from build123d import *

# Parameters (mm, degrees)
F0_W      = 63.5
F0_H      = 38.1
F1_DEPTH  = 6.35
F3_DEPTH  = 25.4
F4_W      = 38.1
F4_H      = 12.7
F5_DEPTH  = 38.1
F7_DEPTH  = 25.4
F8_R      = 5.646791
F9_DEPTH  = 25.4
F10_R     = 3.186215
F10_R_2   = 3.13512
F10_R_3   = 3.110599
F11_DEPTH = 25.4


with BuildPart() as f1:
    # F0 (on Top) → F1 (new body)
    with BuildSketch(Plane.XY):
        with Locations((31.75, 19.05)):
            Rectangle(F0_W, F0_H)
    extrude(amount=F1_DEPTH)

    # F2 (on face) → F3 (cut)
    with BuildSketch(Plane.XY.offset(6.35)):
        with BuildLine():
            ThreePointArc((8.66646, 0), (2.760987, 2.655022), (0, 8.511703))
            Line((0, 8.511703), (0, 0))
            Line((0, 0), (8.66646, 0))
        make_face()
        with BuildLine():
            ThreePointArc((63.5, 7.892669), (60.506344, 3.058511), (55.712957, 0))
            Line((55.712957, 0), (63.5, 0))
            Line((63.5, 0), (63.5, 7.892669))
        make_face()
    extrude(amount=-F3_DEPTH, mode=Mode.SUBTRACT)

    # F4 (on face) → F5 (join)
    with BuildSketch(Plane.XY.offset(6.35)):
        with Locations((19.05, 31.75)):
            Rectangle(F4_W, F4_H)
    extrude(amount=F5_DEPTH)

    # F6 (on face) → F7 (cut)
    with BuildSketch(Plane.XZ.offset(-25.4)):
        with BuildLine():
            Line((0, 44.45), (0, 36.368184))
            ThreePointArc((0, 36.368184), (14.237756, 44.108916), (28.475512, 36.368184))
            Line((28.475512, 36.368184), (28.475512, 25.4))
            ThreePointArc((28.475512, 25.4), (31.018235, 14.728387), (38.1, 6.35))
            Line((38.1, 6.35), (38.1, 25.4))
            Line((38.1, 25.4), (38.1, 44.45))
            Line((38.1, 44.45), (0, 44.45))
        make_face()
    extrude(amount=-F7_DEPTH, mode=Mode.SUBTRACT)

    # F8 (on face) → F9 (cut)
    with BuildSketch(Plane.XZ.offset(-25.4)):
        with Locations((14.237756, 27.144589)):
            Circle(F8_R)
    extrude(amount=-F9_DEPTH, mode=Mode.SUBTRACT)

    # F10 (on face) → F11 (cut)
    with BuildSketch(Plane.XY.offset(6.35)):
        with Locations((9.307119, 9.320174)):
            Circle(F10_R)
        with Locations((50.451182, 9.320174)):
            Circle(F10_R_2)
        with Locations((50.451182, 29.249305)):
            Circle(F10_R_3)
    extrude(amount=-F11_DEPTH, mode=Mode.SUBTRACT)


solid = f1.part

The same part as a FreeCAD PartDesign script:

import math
import FreeCAD as App
import Part
import Sketcher
Q = App.Units.Quantity


def add_polygon(sketch, points):
    """Adds a closed chain of lines whose ends are joined by coincident constraints."""
    first, n = sketch.GeometryCount, len(points)
    for a, b in zip(points, points[1:] + points[:1]):
        sketch.addGeometry(Part.LineSegment(App.Vector(*a, 0), App.Vector(*b, 0)), False)
    for i in range(n):
        sketch.addConstraint(Sketcher.Constraint("Coincident", first + i, 2, first + (i + 1) % n, 1))

doc = App.newDocument("Part")
body = doc.addObject("PartDesign::Body", "Body")

sketch1 = body.newObject("Sketcher::SketchObject", "Sketch")
sketch1.AttachmentSupport = (doc.getObject("XY_Plane"), [""])
sketch1.MapMode = "FlatFace"
add_polygon(sketch1, [(0, 38), (0, 0), (64, 0), (64, 38)])
sketch1.addConstraint(Sketcher.Constraint("Vertical", 0))
sketch1.addConstraint(Sketcher.Constraint("Horizontal", 1))
sketch1.addConstraint(Sketcher.Constraint("Vertical", 2))
sketch1.addConstraint(Sketcher.Constraint("Horizontal", 3))
sketch1.addConstraint(Sketcher.Constraint("Coincident", 0, 2, -1, 1))
sketch1.addConstraint(Sketcher.Constraint("DistanceX", 1, 1, 1, 2, Q("2.5 in")))
sketch1.addConstraint(Sketcher.Constraint("DistanceY", 0, 2, 0, 1, Q("1.5 in")))
pad1 = body.newObject("PartDesign::Pad", "Pad")
pad1.Profile = sketch1
pad1.Length = Q("0.25 in")

sketch2 = body.newObject("Sketcher::SketchObject", "Sketch001")
sketch2.AttachmentSupport = (doc.getObject("XY_Plane"), [""])
sketch2.MapMode = "FlatFace"
sketch2.AttachmentOffset = App.Placement(App.Vector(0, 0, 0.25 * 25.4), App.Rotation())
sketch2.addGeometry(Part.ArcOfCircle(Part.Circle(App.Vector(9, 9, 0), App.Vector(0, 0, 1), 9), math.radians(-175), math.radians(-94)), False)
sketch2.addGeometry(Part.LineSegment(App.Vector(0, 9, 0), App.Vector(0, 0, 0)), False)
sketch2.addGeometry(Part.LineSegment(App.Vector(0, 0, 0), App.Vector(9, 0, 0)), False)
sketch2.addGeometry(Part.ArcOfCircle(Part.Circle(App.Vector(51, 12, 0), App.Vector(0, 0, 1), 13), math.radians(-70), math.radians(-19)), False)
sketch2.addGeometry(Part.LineSegment(App.Vector(56, 0, 0), App.Vector(64, 0, 0)), False)
sketch2.addGeometry(Part.LineSegment(App.Vector(64, 0, 0), App.Vector(64, 8, 0)), False)
sketch2.addConstraint(Sketcher.Constraint("Coincident", 0, 1, 1, 1))
sketch2.addConstraint(Sketcher.Constraint("Coincident", 1, 2, 2, 1))
sketch2.addConstraint(Sketcher.Constraint("Coincident", 2, 2, 0, 2))
sketch2.addConstraint(Sketcher.Constraint("Coincident", 3, 1, 4, 1))
sketch2.addConstraint(Sketcher.Constraint("Coincident", 4, 2, 5, 1))
sketch2.addConstraint(Sketcher.Constraint("Coincident", 5, 2, 3, 2))
sketch2.addConstraint(Sketcher.Constraint("Vertical", 1))
sketch2.addConstraint(Sketcher.Constraint("Horizontal", 2))
sketch2.addConstraint(Sketcher.Constraint("Horizontal", 4))
sketch2.addConstraint(Sketcher.Constraint("Vertical", 5))
sketch2.addConstraint(Sketcher.Constraint("Coincident", 1, 2, -1, 1))
sketch2.addConstraint(Sketcher.Constraint("PointOnObject", 3, 1, -1))
sketch2.addConstraint(Sketcher.Constraint("DistanceX", -1, 1, 4, 2, Q("2.5 in")))
sketch2.addConstraint(Sketcher.Constraint("Radius", 0, Q("9.342166 mm")))
sketch2.addConstraint(Sketcher.Constraint("Radius", 3, Q("12.788012 mm")))
sketch2.addConstraint(Sketcher.Constraint("DistanceX", 2, 1, 2, 2, Q("8.66646 mm")))
sketch2.addConstraint(Sketcher.Constraint("DistanceY", 5, 1, 5, 2, Q("7.892669 mm")))
sketch2.addConstraint(Sketcher.Constraint("DistanceX", 4, 1, 4, 2, Q("7.787043 mm")))
sketch2.addConstraint(Sketcher.Constraint("DistanceY", 1, 2, 1, 1, Q("8.511703 mm")))
pocket1 = body.newObject("PartDesign::Pocket", "Pocket")
pocket1.Profile = sketch2
pocket1.Length = Q("1 in")

sketch3 = body.newObject("Sketcher::SketchObject", "Sketch002")
sketch3.AttachmentSupport = (doc.getObject("XY_Plane"), [""])
sketch3.MapMode = "FlatFace"
sketch3.AttachmentOffset = App.Placement(App.Vector(0, 0, 0.25 * 25.4), App.Rotation())
add_polygon(sketch3, [(0, 38), (0, 25), (38, 25), (38, 38)])
sketch3.addConstraint(Sketcher.Constraint("Vertical", 0))
sketch3.addConstraint(Sketcher.Constraint("Horizontal", 1))
sketch3.addConstraint(Sketcher.Constraint("Vertical", 2))
sketch3.addConstraint(Sketcher.Constraint("Horizontal", 3))
sketch3.addConstraint(Sketcher.Constraint("PointOnObject", 0, 2, -2))
sketch3.addConstraint(Sketcher.Constraint("DistanceX", 1, 1, 1, 2, Q("1.5 in")))
sketch3.addConstraint(Sketcher.Constraint("DistanceY", 0, 2, 0, 1, Q("0.5 in")))
sketch3.addConstraint(Sketcher.Constraint("DistanceY", -1, 1, 0, 2, Q("1 in")))
pad2 = body.newObject("PartDesign::Pad", "Pad001")
pad2.Profile = sketch3
pad2.Length = Q("1.5 in")

sketch4 = body.newObject("Sketcher::SketchObject", "Sketch003")
sketch4.AttachmentSupport = (doc.getObject("XZ_Plane"), [""])
sketch4.MapMode = "FlatFace"
sketch4.AttachmentOffset = App.Placement(App.Vector(0, 0, -1 * 25.4), App.Rotation())
sketch4.addGeometry(Part.LineSegment(App.Vector(0, 44, 0), App.Vector(0, 36, 0)), False)
sketch4.addGeometry(Part.ArcOfCircle(Part.Circle(App.Vector(14, 27, 0), App.Vector(0, 0, 1), 17), math.radians(33), math.radians(147)), False)
sketch4.addGeometry(Part.LineSegment(App.Vector(28, 36, 0), App.Vector(28, 25, 0)), False)
sketch4.addGeometry(Part.ArcOfCircle(Part.Circle(App.Vector(52, 25, 0), App.Vector(0, 0, 1), 24), math.radians(180), math.radians(234)), False)
sketch4.addGeometry(Part.LineSegment(App.Vector(38, 6, 0), App.Vector(38, 44, 0)), False)
sketch4.addGeometry(Part.LineSegment(App.Vector(38, 44, 0), App.Vector(0, 44, 0)), False)
sketch4.addConstraint(Sketcher.Constraint("Coincident", 0, 2, 1, 2))
sketch4.addConstraint(Sketcher.Constraint("Coincident", 1, 1, 2, 1))
sketch4.addConstraint(Sketcher.Constraint("Tangent", 2, 2, 3, 1))
sketch4.addConstraint(Sketcher.Constraint("Coincident", 3, 2, 4, 1))
sketch4.addConstraint(Sketcher.Constraint("Coincident", 4, 2, 5, 1))
sketch4.addConstraint(Sketcher.Constraint("Coincident", 5, 2, 0, 1))
sketch4.addConstraint(Sketcher.Constraint("Vertical", 0))
sketch4.addConstraint(Sketcher.Constraint("Vertical", 2))
sketch4.addConstraint(Sketcher.Constraint("Vertical", 4))
sketch4.addConstraint(Sketcher.Constraint("Horizontal", 5))
sketch4.addConstraint(Sketcher.Constraint("PointOnObject", 0, 2, -2))
sketch4.addConstraint(Sketcher.Constraint("Horizontal", 0, 2, 1, 1))
sketch4.addConstraint(Sketcher.Constraint("Equal", 5, 4))
sketch4.addConstraint(Sketcher.Constraint("DistanceX", 5, 2, 5, 1, Q("1.5 in")))
sketch4.addConstraint(Sketcher.Constraint("DistanceY", -1, 1, 3, 3, Q("0.9999999 in")))
sketch4.addConstraint(Sketcher.Constraint("DistanceY", -1, 1, 3, 2, Q("0.25 in")))
sketch4.addConstraint(Sketcher.Constraint("Radius", 3, Q("23.665319 mm")))
sketch4.addConstraint(Sketcher.Constraint("Radius", 1, Q("16.964328 mm")))
sketch4.addConstraint(Sketcher.Constraint("DistanceY", 0, 2, 0, 1, Q("8.081816 mm")))
pocket2 = body.newObject("PartDesign::Pocket", "Pocket001")
pocket2.Profile = sketch4
pocket2.Length = Q("1 in")

sketch5 = body.newObject("Sketcher::SketchObject", "Sketch004")
sketch5.AttachmentSupport = (doc.getObject("XZ_Plane"), [""])
sketch5.MapMode = "FlatFace"
sketch5.AttachmentOffset = App.Placement(App.Vector(0, 0, -1 * 25.4), App.Rotation())
sketch5.addGeometry(Part.Circle(App.Vector(14, 27, 0), App.Vector(0, 0, 1), 6), False)
sketch5.addConstraint(Sketcher.Constraint("Diameter", 0, Q("11.293582 mm")))
sketch5.addConstraint(Sketcher.Constraint("DistanceY", -1, 1, 0, 3, Q("27.144589 mm")))
sketch5.addConstraint(Sketcher.Constraint("DistanceX", -1, 1, 0, 3, Q("14.237756 mm")))
pocket3 = body.newObject("PartDesign::Pocket", "Pocket002")
pocket3.Profile = sketch5
pocket3.Length = Q("1 in")

sketch6 = body.newObject("Sketcher::SketchObject", "Sketch005")
sketch6.AttachmentSupport = (doc.getObject("XY_Plane"), [""])
sketch6.MapMode = "FlatFace"
sketch6.AttachmentOffset = App.Placement(App.Vector(0, 0, 0.25 * 25.4), App.Rotation())
sketch6.addGeometry(Part.Circle(App.Vector(9.3, 9.3, 0), App.Vector(0, 0, 1), 3.2), False)
sketch6.addGeometry(Part.Circle(App.Vector(50.5, 9.3, 0), App.Vector(0, 0, 1), 3.1), False)
sketch6.addGeometry(Part.Circle(App.Vector(50.5, 29.2, 0), App.Vector(0, 0, 1), 3.1), False)
sketch6.addConstraint(Sketcher.Constraint("Horizontal", 0, 3, 1, 3))
sketch6.addConstraint(Sketcher.Constraint("Vertical", 1, 3, 2, 3))
sketch6.addConstraint(Sketcher.Constraint("Diameter", 2, Q("6.221198 mm")))
sketch6.addConstraint(Sketcher.Constraint("Diameter", 0, Q("6.37243 mm")))
sketch6.addConstraint(Sketcher.Constraint("Diameter", 1, Q("6.27024 mm")))
sketch6.addConstraint(Sketcher.Constraint("DistanceX", -1, 1, 0, 3, Q("9.307119 mm")))
sketch6.addConstraint(Sketcher.Constraint("DistanceY", 1, 3, 2, 3, Q("19.929131 mm")))
sketch6.addConstraint(Sketcher.Constraint("DistanceY", -1, 1, 0, 3, Q("9.320174 mm")))
sketch6.addConstraint(Sketcher.Constraint("DistanceX", -1, 1, 1, 3, Q("50.451182 mm")))
pocket4 = body.newObject("PartDesign::Pocket", "Pocket003")
pocket4.Profile = sketch6
pocket4.Length = Q("1 in")

doc.recompute()
